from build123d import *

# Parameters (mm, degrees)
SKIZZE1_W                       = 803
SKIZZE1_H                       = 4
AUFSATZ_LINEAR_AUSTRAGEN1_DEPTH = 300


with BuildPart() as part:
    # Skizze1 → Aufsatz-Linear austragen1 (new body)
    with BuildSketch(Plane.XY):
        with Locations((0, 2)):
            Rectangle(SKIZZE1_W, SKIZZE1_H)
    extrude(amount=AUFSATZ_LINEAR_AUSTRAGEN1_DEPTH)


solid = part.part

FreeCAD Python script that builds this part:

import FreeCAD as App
import Part
import Sketcher

V = App.Vector


def add_polygon(sketch, points):
    """Adds a closed chain of lines whose ends are joined by coincident constraints."""
    first, n = sketch.GeometryCount, len(points)
    for a, b in zip(points, points[1:] + points[:1]):
        sketch.addGeometry(Part.LineSegment(App.Vector(*a, 0), App.Vector(*b, 0)), False)
    for i in range(n):
        sketch.addConstraint(Sketcher.Constraint("Coincident", first + i, 2, first + (i + 1) % n, 1))

doc = App.newDocument("Part")
body = doc.addObject("PartDesign::Body", "Body")

# Sketch on XY plane
sketch1 = body.newObject("Sketcher::SketchObject", "Sketch")
sketch1.AttachmentSupport = (doc.getObject("XY_Plane"), [""])
sketch1.MapMode = "FlatFace"
add_polygon(sketch1, [(-401.5, 4), (-401.5, 0), (401.5, 0), (401.5, 4)])  # lines 0-3
sketch1.addConstraint([
    Sketcher.Constraint("Vertical", 0),
    Sketcher.Constraint("Horizontal", 1),
    Sketcher.Constraint("Vertical", 2),
    Sketcher.Constraint("Horizontal", 3),
    Sketcher.Constraint("Symmetric", 0, 2, 1, 2, -1, 1),
    Sketcher.Constraint("DistanceX", 1, 1, 1, 2, 803.0),
    Sketcher.Constraint("DistanceY", 0, 2, 0, 1, 4.0),
])
pad1 = body.newObject("PartDesign::Pad", "Pad")
pad1.Profile = sketch1
pad1.Length = 300

doc.recompute()
